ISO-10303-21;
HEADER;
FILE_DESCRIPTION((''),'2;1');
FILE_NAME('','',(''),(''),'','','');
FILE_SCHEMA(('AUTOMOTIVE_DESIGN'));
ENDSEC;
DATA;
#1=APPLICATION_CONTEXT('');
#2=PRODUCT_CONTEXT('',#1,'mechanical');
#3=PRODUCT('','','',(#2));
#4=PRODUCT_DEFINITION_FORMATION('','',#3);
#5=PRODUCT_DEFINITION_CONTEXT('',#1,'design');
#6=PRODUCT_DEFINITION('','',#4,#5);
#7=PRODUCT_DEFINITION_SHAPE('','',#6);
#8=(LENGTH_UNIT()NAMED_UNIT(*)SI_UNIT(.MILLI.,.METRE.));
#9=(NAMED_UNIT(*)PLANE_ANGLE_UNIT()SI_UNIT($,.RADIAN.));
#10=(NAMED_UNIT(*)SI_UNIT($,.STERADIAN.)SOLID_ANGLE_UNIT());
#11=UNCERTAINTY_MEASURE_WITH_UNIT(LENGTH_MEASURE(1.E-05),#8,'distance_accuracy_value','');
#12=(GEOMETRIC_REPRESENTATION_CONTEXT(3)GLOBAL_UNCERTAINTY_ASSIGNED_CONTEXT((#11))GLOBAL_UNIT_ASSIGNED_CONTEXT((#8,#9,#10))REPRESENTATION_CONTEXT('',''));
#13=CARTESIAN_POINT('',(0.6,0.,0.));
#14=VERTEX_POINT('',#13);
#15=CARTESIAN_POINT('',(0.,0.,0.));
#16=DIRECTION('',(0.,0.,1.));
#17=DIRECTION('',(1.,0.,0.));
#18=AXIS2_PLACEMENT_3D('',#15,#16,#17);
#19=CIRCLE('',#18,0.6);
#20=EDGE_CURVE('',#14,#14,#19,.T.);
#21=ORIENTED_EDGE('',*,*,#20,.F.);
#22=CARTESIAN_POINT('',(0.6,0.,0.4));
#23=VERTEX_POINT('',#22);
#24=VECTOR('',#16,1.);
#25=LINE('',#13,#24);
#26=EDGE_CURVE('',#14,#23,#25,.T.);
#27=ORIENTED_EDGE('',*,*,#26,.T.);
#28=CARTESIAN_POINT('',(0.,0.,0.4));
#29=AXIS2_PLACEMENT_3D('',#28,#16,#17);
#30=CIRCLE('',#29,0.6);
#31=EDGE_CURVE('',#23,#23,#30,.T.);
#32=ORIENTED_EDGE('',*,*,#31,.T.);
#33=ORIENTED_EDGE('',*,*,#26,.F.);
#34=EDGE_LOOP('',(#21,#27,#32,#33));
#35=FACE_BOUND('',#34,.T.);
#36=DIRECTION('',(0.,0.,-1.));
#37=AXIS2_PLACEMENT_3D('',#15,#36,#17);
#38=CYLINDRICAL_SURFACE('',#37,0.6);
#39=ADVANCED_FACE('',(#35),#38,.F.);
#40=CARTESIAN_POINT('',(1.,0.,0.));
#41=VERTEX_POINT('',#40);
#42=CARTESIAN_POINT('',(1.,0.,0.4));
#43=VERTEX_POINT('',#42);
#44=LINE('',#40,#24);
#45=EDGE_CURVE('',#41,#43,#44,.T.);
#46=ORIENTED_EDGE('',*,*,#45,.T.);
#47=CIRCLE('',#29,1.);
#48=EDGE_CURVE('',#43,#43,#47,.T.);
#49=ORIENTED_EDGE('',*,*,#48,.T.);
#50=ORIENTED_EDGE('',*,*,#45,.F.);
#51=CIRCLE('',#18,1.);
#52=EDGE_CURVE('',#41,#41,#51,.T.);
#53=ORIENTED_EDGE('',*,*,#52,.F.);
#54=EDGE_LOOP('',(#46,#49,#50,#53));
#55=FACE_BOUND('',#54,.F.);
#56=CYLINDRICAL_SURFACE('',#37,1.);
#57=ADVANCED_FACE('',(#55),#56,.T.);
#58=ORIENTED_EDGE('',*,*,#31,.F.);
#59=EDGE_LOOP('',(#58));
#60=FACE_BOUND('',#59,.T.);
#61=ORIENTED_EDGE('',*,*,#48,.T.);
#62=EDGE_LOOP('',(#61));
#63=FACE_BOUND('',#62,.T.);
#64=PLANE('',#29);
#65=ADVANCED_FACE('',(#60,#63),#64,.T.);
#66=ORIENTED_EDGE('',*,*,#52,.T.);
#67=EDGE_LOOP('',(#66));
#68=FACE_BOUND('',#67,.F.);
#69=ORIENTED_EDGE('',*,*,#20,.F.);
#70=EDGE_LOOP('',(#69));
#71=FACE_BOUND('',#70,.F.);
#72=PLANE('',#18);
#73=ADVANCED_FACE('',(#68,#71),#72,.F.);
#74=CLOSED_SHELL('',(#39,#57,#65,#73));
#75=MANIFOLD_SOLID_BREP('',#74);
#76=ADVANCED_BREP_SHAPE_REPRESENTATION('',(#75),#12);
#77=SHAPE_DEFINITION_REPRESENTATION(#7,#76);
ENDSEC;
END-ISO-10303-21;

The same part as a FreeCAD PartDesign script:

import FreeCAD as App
import Part
import Sketcher
from FreeCAD import Vector
Q = App.Units.Quantity

doc = App.newDocument("Part")
params = doc.addObject("Spreadsheet::Sheet", "Params")
for row, (alias, value) in enumerate([
    ("sketch1_diameter", "2 mm"),
    ("sketch1_diameter2", "1.2 mm"),
    ("pad1_length", "0.4 mm"),
], start=1):
    params.set(f"A{row}", alias)
    params.set(f"B{row}", "=" + value)
    params.setAlias(f"B{row}", alias)

body = doc.addObject("PartDesign::Body", "Body")

# Sketch on XY plane
sketch1 = doc.addObject("Sketcher::SketchObject", "Sketch")
body.addObject(sketch1)
sketch1.AttachmentSupport = (doc.XY_Plane, [""])
sketch1.MapMode = "FlatFace"
sketch1.addGeometry([
    Part.Circle(Vector(0, 0, 0), Vector(0, 0, 1), 1),
    Part.Circle(Vector(0, 0, 0), Vector(0, 0, 1), 0.6),
], False)
sketch1.addConstraint([
    Sketcher.Constraint("Coincident", 0, 3, -1, 1),
    Sketcher.Constraint("Coincident", 1, 3, -1, 1),
    Sketcher.Constraint("Diameter", 0, Q("2 mm")),
    Sketcher.Constraint("Diameter", 1, Q("1.2 mm")),
])
sketch1.setExpression("Constraints[2]", "Params.sketch1_diameter")
sketch1.setExpression("Constraints[3]", "Params.sketch1_diameter2")
pad1 = doc.addObject("PartDesign::Pad", "Pad")
body.addObject(pad1)
pad1.Profile = sketch1
pad1.setExpression("Length", "Params.pad1_length")

doc.recompute()
